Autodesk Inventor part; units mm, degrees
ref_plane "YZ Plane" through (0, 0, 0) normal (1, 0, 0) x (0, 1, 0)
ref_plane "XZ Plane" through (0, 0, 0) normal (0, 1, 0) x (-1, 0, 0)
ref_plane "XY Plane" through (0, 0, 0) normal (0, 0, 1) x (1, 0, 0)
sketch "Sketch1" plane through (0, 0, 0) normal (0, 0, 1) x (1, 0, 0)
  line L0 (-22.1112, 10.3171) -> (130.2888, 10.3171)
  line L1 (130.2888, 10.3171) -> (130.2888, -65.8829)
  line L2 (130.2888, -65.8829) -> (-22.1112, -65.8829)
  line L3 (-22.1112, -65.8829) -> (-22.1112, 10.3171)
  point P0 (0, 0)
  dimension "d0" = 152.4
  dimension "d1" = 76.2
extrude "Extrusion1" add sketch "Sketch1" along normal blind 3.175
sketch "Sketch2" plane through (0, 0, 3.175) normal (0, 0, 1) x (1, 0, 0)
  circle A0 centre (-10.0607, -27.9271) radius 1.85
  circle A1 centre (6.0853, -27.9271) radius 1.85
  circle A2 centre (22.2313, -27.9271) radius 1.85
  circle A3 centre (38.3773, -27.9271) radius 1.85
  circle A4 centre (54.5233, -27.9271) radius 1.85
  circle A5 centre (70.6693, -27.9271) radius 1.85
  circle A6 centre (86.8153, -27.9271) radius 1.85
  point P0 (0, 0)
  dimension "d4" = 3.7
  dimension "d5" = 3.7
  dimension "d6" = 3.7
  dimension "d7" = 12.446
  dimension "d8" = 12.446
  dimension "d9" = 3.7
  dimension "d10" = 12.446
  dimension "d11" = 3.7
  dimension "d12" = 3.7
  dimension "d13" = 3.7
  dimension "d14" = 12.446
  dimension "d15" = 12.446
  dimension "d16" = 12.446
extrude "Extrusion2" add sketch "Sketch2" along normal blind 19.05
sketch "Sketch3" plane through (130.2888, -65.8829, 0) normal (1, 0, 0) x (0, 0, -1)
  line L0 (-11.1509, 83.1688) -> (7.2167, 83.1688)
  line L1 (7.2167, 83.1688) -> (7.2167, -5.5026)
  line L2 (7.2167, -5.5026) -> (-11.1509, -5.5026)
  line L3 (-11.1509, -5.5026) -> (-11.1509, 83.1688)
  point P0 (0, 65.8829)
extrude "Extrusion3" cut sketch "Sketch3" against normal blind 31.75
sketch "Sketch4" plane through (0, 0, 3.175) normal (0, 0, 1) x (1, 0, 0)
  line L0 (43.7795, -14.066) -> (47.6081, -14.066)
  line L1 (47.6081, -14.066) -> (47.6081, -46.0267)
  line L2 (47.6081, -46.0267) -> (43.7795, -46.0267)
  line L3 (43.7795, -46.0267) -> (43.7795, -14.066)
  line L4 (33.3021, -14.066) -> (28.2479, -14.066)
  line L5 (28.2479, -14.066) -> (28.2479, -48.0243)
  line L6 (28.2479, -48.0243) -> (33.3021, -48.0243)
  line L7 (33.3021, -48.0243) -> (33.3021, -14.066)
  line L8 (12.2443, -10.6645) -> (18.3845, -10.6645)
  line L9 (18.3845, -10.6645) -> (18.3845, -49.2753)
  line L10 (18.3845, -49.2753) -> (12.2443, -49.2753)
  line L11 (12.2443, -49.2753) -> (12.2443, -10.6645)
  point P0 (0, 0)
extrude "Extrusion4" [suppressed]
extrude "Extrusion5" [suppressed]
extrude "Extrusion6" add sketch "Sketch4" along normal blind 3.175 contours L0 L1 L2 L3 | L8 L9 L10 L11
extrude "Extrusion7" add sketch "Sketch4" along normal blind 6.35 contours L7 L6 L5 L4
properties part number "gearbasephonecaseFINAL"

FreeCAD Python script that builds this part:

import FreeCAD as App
import Part
import Sketcher

V = App.Vector
Q = App.Units.Quantity


def add_polygon(sketch, points):
    """Adds a closed chain of lines whose ends are joined by coincident constraints."""
    first, n = sketch.GeometryCount, len(points)
    for a, b in zip(points, points[1:] + points[:1]):
        sketch.addGeometry(Part.LineSegment(App.Vector(*a, 0), App.Vector(*b, 0)), False)
    for i in range(n):
        sketch.addConstraint(Sketcher.Constraint("Coincident", first + i, 2, first + (i + 1) % n, 1))

doc = App.newDocument("Part")
body = doc.addObject("PartDesign::Body", "Body")

sketch1 = doc.addObject("Sketcher::SketchObject", "Sketch")
body.addObject(sketch1)
sketch1.AttachmentSupport = (doc.XY_Plane, [""])
sketch1.MapMode = "FlatFace"
add_polygon(sketch1, [(130.2888, 10.3171), (-22.1112, 10.3171), (-22.1112, -65.8829), (130.2888, -65.8829)])
sketch1.addConstraint(Sketcher.Constraint("Horizontal", 0))
sketch1.addConstraint(Sketcher.Constraint("Vertical", 1))
sketch1.addConstraint(Sketcher.Constraint("Horizontal", 2))
sketch1.addConstraint(Sketcher.Constraint("Vertical", 3))
sketch1.addConstraint(Sketcher.Constraint("DistanceX", 0, 2, 0, 1, Q("6 in")))
sketch1.addConstraint(Sketcher.Constraint("DistanceY", 1, 2, 1, 1, Q("3 in")))
sketch1.addConstraint(Sketcher.Constraint("DistanceX", 0, 2, -1, 1, Q("22.1112 mm")))
sketch1.addConstraint(Sketcher.Constraint("DistanceY", -1, 1, 0, 2, Q("10.317 mm")))
pad1 = doc.addObject("PartDesign::Pad", "Pad")
body.addObject(pad1)
pad1.Profile = sketch1
pad1.Length = Q("0.125 in")

sketch2 = doc.addObject("Sketcher::SketchObject", "Sketch001")
body.addObject(sketch2)
sketch2.AttachmentSupport = (doc.XY_Plane, [""])
sketch2.MapMode = "FlatFace"
sketch2.AttachmentOffset = App.Placement(V(0, 0, 0.125 * 25.4), App.Rotation())
sketch2.addGeometry(Part.Circle(V(-10.0607, -27.9271, 0), V(0, 0, 1), 1.85), False)
sketch2.addGeometry(Part.Circle(V(6.0853, -27.9271, 0), V(0, 0, 1), 1.85), False)
sketch2.addGeometry(Part.Circle(V(22.2313, -27.9271, 0), V(0, 0, 1), 1.85), False)
sketch2.addGeometry(Part.Circle(V(38.3773, -27.9271, 0), V(0, 0, 1), 1.85), False)
sketch2.addGeometry(Part.Circle(V(54.5233, -27.9271, 0), V(0, 0, 1), 1.85), False)
sketch2.addGeometry(Part.Circle(V(70.6693, -27.9271, 0), V(0, 0, 1), 1.85), False)
sketch2.addGeometry(Part.Circle(V(86.8153, -27.9271, 0), V(0, 0, 1), 1.85), False)
sketch2.addConstraint(Sketcher.Constraint("Equal", 0, 1))
sketch2.addConstraint(Sketcher.Constraint("Equal", 1, 2))
sketch2.addConstraint(Sketcher.Constraint("Equal", 2, 3))
sketch2.addConstraint(Sketcher.Constraint("Equal", 3, 4))
sketch2.addConstraint(Sketcher.Constraint("Equal", 4, 5))
sketch2.addConstraint(Sketcher.Constraint("Equal", 5, 6))
sketch2.addConstraint(Sketcher.Constraint("Horizontal", 0, 3, 1, 3))
sketch2.addConstraint(Sketcher.Constraint("Horizontal", 1, 3, 2, 3))
sketch2.addConstraint(Sketcher.Constraint("Horizontal", 2, 3, 3, 3))
sketch2.addConstraint(Sketcher.Constraint("Horizontal", 3, 3, 4, 3))
sketch2.addConstraint(Sketcher.Constraint("Horizontal", 4, 3, 5, 3))
sketch2.addConstraint(Sketcher.Constraint("Horizontal", 5, 3, 6, 3))
sketch2.addConstraint(Sketcher.Constraint("Diameter", 0, Q("3.7 mm")))
sketch2.addConstraint(Sketcher.Constraint("DistanceX", 0, 3, 3, 3, Q("1.907 in")))
sketch2.addConstraint(Sketcher.Constraint("DistanceX", 1, 3, 4, 3, Q("1.907 in")))
sketch2.addConstraint(Sketcher.Constraint("DistanceX", 2, 3, 5, 3, Q("1.907 in")))
sketch2.addConstraint(Sketcher.Constraint("DistanceX", 3, 3, 6, 3, Q("1.907 in")))
sketch2.addConstraint(Sketcher.Constraint("DistanceX", 0, 3, -1, 1, Q("0.3961 in")))
sketch2.addConstraint(Sketcher.Constraint("DistanceY", 0, 3, -1, 1, Q("1.0995 in")))
sketch2.addConstraint(Sketcher.Constraint("DistanceX", -1, 1, 1, 3, Q("6.0853 mm")))
sketch2.addConstraint(Sketcher.Constraint("DistanceX", -1, 1, 2, 3, Q("22.2313 mm")))
pad2 = doc.addObject("PartDesign::Pad", "Pad001")
body.addObject(pad2)
pad2.Profile = sketch2
pad2.Length = Q("0.75 in")

sketch3 = doc.addObject("Sketcher::SketchObject", "Sketch002")
body.addObject(sketch3)
sketch3.AttachmentSupport = (doc.YZ_Plane, [""])
sketch3.MapMode = "FlatFace"
sketch3.AttachmentOffset = App.Placement(V(0, 0, 130.2888), App.Rotation())
add_polygon(sketch3, [(17.2859, -7.2167), (17.2859, 11.1509), (-71.3855, 11.1509), (-71.3855, -7.2167)])
sketch3.addConstraint(Sketcher.Constraint("Vertical", 0))
sketch3.addConstraint(Sketcher.Constraint("Horizontal", 1))
sketch3.addConstraint(Sketcher.Constraint("Vertical", 2))
sketch3.addConstraint(Sketcher.Constraint("Horizontal", 3))
sketch3.addConstraint(Sketcher.Constraint("DistanceX", 1, 2, 1, 1, Q("3.491 in")))
sketch3.addConstraint(Sketcher.Constraint("DistanceY", -1, 1, 0, 2, Q("0.439 in")))
sketch3.addConstraint(Sketcher.Constraint("DistanceY", 0, 1, 0, 2, Q("18.3676 mm")))
sketch3.addConstraint(Sketcher.Constraint("DistanceX", -1, 1, 0, 2, Q("17.286 mm")))
pocket1 = doc.addObject("PartDesign::Pocket", "Pocket")
body.addObject(pocket1)
pocket1.Profile = sketch3
pocket1.Length = Q("1.25 in")

sketch4 = doc.addObject("Sketcher::SketchObject", "Sketch003")
body.addObject(sketch4)
sketch4.AttachmentSupport = (doc.XY_Plane, [""])
sketch4.MapMode = "FlatFace"
sketch4.AttachmentOffset = App.Placement(V(0, 0, 0.125 * 25.4), App.Rotation())
add_polygon(sketch4, [(47.6081, -14.066), (43.7795, -14.066), (43.7795, -46.0267), (47.6081, -46.0267)])
add_polygon(sketch4, [(18.3845, -10.6645), (12.2443, -10.6645), (12.2443, -49.2753), (18.3845, -49.2753)])
sketch4.addConstraint(Sketcher.Constraint("Horizontal", 0))
sketch4.addConstraint(Sketcher.Constraint("Vertical", 1))
sketch4.addConstraint(Sketcher.Constraint("Horizontal", 2))
sketch4.addConstraint(Sketcher.Constraint("Vertical", 3))
sketch4.addConstraint(Sketcher.Constraint("Horizontal", 4))
sketch4.addConstraint(Sketcher.Constraint("Vertical", 5))
sketch4.addConstraint(Sketcher.Constraint("Horizontal", 6))
sketch4.addConstraint(Sketcher.Constraint("Vertical", 7))
sketch4.addConstraint(Sketcher.Constraint("DistanceY", 1, 2, 1, 1, Q("1.2583 in")))
sketch4.addConstraint(Sketcher.Constraint("DistanceY", 5, 2, 5, 1, Q("1.5201 in")))
sketch4.addConstraint(Sketcher.Constraint("DistanceX", 0, 2, 0, 1, Q("3.8286 mm")))
sketch4.addConstraint(Sketcher.Constraint("DistanceX", 4, 2, 4, 1, Q("6.1402 mm")))
sketch4.addConstraint(Sketcher.Constraint("DistanceX", -1, 1, 0, 2, Q("1.7236 in")))
sketch4.addConstraint(Sketcher.Constraint("DistanceX", -1, 1, 6, 2, Q("0.7238 in")))
sketch4.addConstraint(Sketcher.Constraint("DistanceY", 5, 2, 1, 2, Q("0.1279 in")))
sketch4.addConstraint(Sketcher.Constraint("DistanceY", 0, 2, -1, 1, Q("14.066 mm")))
pad3 = doc.addObject("PartDesign::Pad", "Pad002")
body.addObject(pad3)
pad3.Profile = sketch4
pad3.Length = Q("0.125 in")

sketch5 = doc.addObject("Sketcher::SketchObject", "Sketch004")
body.addObject(sketch5)
sketch5.AttachmentSupport = (doc.XY_Plane, [""])
sketch5.MapMode = "FlatFace"
sketch5.AttachmentOffset = App.Placement(V(0, 0, 0.125 * 25.4), App.Rotation())
add_polygon(sketch5, [(33.3021, -48.0243), (33.3021, -14.066), (28.2479, -14.066), (28.2479, -48.0243)])
sketch5.addConstraint(Sketcher.Constraint("Vertical", 0))
sketch5.addConstraint(Sketcher.Constraint("Horizontal", 1))
sketch5.addConstraint(Sketcher.Constraint("Vertical", 2))
sketch5.addConstraint(Sketcher.Constraint("Horizontal", 3))
sketch5.addConstraint(Sketcher.Constraint("DistanceX", 1, 2, 1, 1, Q("5.0542 mm")))
sketch5.addConstraint(Sketcher.Constraint("DistanceY", 0, 1, 0, 2, Q("33.9583 mm")))
sketch5.addConstraint(Sketcher.Constraint("DistanceX", -1, 1, 0, 2, Q("1.3111 in")))
sketch5.addConstraint(Sketcher.Constraint("DistanceY", 0, 2, -1, 1, Q("14.066 mm")))
pad4 = doc.addObject("PartDesign::Pad", "Pad003")
body.addObject(pad4)
pad4.Profile = sketch5
pad4.Length = Q("0.25 in")

doc.recompute()
